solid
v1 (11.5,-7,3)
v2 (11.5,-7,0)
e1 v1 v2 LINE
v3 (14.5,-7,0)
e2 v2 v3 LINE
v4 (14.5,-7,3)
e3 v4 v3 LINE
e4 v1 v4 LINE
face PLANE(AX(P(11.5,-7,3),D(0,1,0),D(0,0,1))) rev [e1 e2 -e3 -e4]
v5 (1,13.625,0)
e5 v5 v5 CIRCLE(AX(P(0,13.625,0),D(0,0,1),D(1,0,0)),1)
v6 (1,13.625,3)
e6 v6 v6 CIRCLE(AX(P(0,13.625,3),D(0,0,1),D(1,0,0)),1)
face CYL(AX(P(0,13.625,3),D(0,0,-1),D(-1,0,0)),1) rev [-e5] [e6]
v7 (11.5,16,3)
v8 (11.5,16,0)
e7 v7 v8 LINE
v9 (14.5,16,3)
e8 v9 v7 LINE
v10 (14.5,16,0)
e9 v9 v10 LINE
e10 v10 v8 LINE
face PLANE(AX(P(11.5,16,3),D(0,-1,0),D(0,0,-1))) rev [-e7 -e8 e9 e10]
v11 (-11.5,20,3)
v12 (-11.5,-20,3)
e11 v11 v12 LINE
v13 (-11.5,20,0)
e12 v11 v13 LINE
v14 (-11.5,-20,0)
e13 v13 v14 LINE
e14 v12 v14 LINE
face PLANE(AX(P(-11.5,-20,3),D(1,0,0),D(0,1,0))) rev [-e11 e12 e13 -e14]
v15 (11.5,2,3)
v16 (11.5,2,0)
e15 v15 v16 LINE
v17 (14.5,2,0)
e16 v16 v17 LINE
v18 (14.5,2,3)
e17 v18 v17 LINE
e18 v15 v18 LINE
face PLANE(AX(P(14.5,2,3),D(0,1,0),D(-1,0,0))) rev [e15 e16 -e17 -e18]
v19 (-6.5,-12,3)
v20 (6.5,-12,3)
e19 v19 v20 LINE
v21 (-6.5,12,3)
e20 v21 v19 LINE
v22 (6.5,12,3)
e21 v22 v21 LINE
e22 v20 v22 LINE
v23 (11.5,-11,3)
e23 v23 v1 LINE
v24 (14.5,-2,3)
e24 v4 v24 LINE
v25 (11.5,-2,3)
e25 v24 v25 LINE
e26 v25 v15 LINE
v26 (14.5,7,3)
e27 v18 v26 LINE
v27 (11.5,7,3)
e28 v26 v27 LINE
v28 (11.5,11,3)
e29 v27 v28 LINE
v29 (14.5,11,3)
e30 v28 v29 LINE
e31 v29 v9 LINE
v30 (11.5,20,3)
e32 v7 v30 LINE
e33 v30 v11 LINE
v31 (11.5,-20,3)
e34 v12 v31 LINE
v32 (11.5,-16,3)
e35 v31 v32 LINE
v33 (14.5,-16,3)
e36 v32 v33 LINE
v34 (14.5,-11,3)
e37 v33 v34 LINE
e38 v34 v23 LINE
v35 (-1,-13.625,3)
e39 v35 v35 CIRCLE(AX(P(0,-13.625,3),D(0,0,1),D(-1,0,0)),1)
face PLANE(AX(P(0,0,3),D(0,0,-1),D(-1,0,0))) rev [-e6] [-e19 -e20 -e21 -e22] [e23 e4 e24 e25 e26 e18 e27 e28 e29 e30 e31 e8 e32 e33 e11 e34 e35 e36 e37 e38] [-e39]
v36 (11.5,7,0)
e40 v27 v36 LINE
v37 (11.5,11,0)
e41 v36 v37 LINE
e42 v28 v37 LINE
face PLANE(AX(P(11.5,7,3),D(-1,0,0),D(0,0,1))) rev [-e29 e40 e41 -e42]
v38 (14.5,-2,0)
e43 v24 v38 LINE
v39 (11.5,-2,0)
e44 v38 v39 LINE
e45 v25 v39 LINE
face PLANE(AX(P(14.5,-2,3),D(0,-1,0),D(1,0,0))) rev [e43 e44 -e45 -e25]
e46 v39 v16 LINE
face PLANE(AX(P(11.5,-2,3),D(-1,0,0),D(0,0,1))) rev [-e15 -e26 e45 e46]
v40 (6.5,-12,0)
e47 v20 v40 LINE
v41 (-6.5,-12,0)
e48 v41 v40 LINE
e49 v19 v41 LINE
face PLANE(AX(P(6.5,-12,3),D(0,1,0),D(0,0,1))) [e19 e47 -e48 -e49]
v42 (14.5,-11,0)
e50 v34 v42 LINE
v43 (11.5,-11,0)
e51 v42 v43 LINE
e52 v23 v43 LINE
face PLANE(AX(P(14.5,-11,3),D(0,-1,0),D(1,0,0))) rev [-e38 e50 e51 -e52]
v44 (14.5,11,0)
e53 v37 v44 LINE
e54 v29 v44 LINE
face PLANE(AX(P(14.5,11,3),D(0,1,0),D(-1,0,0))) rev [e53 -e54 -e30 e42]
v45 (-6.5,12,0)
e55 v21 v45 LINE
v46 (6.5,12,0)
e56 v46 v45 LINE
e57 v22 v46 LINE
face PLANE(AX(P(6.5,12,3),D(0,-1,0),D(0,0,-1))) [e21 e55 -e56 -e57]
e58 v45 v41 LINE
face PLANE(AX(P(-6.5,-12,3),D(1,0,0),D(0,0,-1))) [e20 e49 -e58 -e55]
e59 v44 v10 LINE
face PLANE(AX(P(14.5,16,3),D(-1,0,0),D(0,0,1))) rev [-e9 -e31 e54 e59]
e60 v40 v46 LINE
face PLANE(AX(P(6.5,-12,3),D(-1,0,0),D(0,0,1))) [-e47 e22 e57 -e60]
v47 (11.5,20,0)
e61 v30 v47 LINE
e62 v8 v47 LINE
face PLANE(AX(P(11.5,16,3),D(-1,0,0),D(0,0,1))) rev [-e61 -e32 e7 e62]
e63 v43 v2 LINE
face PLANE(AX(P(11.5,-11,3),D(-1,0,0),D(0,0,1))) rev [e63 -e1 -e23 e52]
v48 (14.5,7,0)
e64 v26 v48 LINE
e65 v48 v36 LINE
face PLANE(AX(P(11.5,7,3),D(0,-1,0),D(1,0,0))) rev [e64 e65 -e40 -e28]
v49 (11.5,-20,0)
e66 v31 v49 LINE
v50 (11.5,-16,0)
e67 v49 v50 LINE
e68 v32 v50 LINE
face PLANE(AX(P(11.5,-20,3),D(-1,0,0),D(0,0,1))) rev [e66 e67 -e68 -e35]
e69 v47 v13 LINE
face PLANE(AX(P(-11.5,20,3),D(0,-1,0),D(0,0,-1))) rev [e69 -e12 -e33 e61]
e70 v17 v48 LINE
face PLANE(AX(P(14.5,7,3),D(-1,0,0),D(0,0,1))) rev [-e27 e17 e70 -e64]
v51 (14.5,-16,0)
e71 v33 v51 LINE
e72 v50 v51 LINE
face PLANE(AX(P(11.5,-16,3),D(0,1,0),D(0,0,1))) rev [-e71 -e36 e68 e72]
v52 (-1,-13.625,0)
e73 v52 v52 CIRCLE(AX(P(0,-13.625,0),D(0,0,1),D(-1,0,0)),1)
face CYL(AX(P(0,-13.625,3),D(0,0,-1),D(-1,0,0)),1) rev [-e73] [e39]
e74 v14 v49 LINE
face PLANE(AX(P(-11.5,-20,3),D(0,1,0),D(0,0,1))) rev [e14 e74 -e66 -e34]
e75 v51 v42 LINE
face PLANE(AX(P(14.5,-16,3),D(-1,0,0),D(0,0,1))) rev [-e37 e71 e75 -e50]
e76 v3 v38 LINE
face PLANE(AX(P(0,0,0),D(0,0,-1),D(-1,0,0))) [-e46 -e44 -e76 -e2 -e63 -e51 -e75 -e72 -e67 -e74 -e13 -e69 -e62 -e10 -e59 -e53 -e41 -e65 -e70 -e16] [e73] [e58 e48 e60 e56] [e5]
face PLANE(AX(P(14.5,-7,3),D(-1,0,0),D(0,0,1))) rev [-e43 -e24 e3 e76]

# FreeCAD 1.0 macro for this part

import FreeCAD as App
import Part
import Sketcher

V = App.Vector
Q = App.Units.Quantity


def add_polygon(sketch, points):
    """Adds a closed chain of lines whose ends are joined by coincident constraints."""
    first, n = sketch.GeometryCount, len(points)
    for a, b in zip(points, points[1:] + points[:1]):
        sketch.addGeometry(Part.LineSegment(App.Vector(*a, 0), App.Vector(*b, 0)), False)
    for i in range(n):
        sketch.addConstraint(Sketcher.Constraint("Coincident", first + i, 2, first + (i + 1) % n, 1))

doc = App.newDocument("Part")
body = doc.addObject("PartDesign::Body", "Body")

# Sketch on XY plane
sketch1 = doc.addObject("Sketcher::SketchObject", "Sketch")
body.addObject(sketch1)
sketch1.AttachmentSupport = (doc.XY_Plane, [""])
sketch1.MapMode = "FlatFace"
add_polygon(sketch1, [(14.5, 16), (11.5, 16), (11.5, 20), (-11.5, 20), (-11.5, -20), (11.5, -20), (11.5, -16), (14.5, -16), (14.5, -11), (11.5, -11), (11.5, -7), (14.5, -7), (14.5, -2), (11.5, -2), (11.5, 2), (14.5, 2), (14.5, 7), (11.5, 7), (11.5, 11), (14.5, 11)])  # lines 0-19
sketch1.addGeometry(Part.Circle(V(0, -13.625, 0), V(0, 0, 1), 1), False)  # 20
add_polygon(sketch1, [(-6.5, -12), (-6.5, 12), (6.5, 12), (6.5, -12)])  # lines 21-24
sketch1.addGeometry(Part.Circle(V(0, 13.625, 0), V(0, 0, 1), 1), False)  # 25
sketch1.addConstraint([
    Sketcher.Constraint("Horizontal", 0),
    Sketcher.Constraint("Vertical", 1),
    Sketcher.Constraint("Horizontal", 2),
    Sketcher.Constraint("Vertical", 3),
    Sketcher.Constraint("Horizontal", 4),
    Sketcher.Constraint("Vertical", 5),
    Sketcher.Constraint("Horizontal", 6),
    Sketcher.Constraint("Vertical", 7),
    Sketcher.Constraint("Horizontal", 8),
    Sketcher.Constraint("Vertical", 9),
    Sketcher.Constraint("Horizontal", 10),
    Sketcher.Constraint("Vertical", 11),
    Sketcher.Constraint("Horizontal", 12),
    Sketcher.Constraint("Vertical", 13),
    Sketcher.Constraint("Horizontal", 14),
    Sketcher.Constraint("Vertical", 15),
    Sketcher.Constraint("Horizontal", 16),
    Sketcher.Constraint("Vertical", 17),
    Sketcher.Constraint("Horizontal", 18),
    Sketcher.Constraint("Vertical", 19),
    Sketcher.Constraint("Vertical", 21),
    Sketcher.Constraint("Horizontal", 22),
    Sketcher.Constraint("Vertical", 23),
    Sketcher.Constraint("Horizontal", 24),
    Sketcher.Constraint("Equal", 20, 25),
    Sketcher.Constraint("Symmetric", 20, 3, 25, 3, -1, 1),
    Sketcher.Constraint("Symmetric", 1, 2, 3, 2, -1, 1),
    Sketcher.Constraint("Symmetric", 21, 2, 23, 2, -1, 1),
    Sketcher.Constraint("Symmetric", 0, 2, 5, 2, -1),
    Sketcher.Constraint("Symmetric", 11, 2, 14, 2, -1),
    Sketcher.Constraint("Symmetric", 9, 2, 16, 2, -1),
    Sketcher.Constraint("Symmetric", 7, 2, 18, 2, -1),
    Sketcher.Constraint("PointOnObject", 20, 3, -2),
    Sketcher.Constraint("Vertical", 5, 2, 8, 2),
    Sketcher.Constraint("Vertical", 7, 2, 10, 2),
    Sketcher.Constraint("Vertical", 9, 2, 12, 2),
    Sketcher.Constraint("Equal", 5, 9),
    Sketcher.Constraint("Equal", 7, 11),
    Sketcher.Constraint("Equal", 9, 13),
    Sketcher.Constraint("Diameter", 20, Q("2 mm")),
    Sketcher.Constraint("DistanceX", 0, 2, 0, 1, Q("3 mm")),
    Sketcher.Constraint("DistanceX", 2, 2, 2, 1, Q("23 mm")),
    Sketcher.Constraint("DistanceX", 22, 1, 22, 2, Q("13 mm")),
    Sketcher.Constraint("DistanceY", 1, 1, 1, 2, Q("4 mm")),
    Sketcher.Constraint("DistanceY", 3, 2, 3, 1, Q("40 mm")),
    Sketcher.Constraint("DistanceY", 21, 1, 21, 2, Q("24 mm")),
    Sketcher.Constraint("DistanceY", 20, 3, 25, 3, Q("27.25 mm")),
])
pad1 = doc.addObject("PartDesign::Pad", "Pad")
body.addObject(pad1)
pad1.Profile = sketch1
pad1.Length = 3

doc.recompute()
